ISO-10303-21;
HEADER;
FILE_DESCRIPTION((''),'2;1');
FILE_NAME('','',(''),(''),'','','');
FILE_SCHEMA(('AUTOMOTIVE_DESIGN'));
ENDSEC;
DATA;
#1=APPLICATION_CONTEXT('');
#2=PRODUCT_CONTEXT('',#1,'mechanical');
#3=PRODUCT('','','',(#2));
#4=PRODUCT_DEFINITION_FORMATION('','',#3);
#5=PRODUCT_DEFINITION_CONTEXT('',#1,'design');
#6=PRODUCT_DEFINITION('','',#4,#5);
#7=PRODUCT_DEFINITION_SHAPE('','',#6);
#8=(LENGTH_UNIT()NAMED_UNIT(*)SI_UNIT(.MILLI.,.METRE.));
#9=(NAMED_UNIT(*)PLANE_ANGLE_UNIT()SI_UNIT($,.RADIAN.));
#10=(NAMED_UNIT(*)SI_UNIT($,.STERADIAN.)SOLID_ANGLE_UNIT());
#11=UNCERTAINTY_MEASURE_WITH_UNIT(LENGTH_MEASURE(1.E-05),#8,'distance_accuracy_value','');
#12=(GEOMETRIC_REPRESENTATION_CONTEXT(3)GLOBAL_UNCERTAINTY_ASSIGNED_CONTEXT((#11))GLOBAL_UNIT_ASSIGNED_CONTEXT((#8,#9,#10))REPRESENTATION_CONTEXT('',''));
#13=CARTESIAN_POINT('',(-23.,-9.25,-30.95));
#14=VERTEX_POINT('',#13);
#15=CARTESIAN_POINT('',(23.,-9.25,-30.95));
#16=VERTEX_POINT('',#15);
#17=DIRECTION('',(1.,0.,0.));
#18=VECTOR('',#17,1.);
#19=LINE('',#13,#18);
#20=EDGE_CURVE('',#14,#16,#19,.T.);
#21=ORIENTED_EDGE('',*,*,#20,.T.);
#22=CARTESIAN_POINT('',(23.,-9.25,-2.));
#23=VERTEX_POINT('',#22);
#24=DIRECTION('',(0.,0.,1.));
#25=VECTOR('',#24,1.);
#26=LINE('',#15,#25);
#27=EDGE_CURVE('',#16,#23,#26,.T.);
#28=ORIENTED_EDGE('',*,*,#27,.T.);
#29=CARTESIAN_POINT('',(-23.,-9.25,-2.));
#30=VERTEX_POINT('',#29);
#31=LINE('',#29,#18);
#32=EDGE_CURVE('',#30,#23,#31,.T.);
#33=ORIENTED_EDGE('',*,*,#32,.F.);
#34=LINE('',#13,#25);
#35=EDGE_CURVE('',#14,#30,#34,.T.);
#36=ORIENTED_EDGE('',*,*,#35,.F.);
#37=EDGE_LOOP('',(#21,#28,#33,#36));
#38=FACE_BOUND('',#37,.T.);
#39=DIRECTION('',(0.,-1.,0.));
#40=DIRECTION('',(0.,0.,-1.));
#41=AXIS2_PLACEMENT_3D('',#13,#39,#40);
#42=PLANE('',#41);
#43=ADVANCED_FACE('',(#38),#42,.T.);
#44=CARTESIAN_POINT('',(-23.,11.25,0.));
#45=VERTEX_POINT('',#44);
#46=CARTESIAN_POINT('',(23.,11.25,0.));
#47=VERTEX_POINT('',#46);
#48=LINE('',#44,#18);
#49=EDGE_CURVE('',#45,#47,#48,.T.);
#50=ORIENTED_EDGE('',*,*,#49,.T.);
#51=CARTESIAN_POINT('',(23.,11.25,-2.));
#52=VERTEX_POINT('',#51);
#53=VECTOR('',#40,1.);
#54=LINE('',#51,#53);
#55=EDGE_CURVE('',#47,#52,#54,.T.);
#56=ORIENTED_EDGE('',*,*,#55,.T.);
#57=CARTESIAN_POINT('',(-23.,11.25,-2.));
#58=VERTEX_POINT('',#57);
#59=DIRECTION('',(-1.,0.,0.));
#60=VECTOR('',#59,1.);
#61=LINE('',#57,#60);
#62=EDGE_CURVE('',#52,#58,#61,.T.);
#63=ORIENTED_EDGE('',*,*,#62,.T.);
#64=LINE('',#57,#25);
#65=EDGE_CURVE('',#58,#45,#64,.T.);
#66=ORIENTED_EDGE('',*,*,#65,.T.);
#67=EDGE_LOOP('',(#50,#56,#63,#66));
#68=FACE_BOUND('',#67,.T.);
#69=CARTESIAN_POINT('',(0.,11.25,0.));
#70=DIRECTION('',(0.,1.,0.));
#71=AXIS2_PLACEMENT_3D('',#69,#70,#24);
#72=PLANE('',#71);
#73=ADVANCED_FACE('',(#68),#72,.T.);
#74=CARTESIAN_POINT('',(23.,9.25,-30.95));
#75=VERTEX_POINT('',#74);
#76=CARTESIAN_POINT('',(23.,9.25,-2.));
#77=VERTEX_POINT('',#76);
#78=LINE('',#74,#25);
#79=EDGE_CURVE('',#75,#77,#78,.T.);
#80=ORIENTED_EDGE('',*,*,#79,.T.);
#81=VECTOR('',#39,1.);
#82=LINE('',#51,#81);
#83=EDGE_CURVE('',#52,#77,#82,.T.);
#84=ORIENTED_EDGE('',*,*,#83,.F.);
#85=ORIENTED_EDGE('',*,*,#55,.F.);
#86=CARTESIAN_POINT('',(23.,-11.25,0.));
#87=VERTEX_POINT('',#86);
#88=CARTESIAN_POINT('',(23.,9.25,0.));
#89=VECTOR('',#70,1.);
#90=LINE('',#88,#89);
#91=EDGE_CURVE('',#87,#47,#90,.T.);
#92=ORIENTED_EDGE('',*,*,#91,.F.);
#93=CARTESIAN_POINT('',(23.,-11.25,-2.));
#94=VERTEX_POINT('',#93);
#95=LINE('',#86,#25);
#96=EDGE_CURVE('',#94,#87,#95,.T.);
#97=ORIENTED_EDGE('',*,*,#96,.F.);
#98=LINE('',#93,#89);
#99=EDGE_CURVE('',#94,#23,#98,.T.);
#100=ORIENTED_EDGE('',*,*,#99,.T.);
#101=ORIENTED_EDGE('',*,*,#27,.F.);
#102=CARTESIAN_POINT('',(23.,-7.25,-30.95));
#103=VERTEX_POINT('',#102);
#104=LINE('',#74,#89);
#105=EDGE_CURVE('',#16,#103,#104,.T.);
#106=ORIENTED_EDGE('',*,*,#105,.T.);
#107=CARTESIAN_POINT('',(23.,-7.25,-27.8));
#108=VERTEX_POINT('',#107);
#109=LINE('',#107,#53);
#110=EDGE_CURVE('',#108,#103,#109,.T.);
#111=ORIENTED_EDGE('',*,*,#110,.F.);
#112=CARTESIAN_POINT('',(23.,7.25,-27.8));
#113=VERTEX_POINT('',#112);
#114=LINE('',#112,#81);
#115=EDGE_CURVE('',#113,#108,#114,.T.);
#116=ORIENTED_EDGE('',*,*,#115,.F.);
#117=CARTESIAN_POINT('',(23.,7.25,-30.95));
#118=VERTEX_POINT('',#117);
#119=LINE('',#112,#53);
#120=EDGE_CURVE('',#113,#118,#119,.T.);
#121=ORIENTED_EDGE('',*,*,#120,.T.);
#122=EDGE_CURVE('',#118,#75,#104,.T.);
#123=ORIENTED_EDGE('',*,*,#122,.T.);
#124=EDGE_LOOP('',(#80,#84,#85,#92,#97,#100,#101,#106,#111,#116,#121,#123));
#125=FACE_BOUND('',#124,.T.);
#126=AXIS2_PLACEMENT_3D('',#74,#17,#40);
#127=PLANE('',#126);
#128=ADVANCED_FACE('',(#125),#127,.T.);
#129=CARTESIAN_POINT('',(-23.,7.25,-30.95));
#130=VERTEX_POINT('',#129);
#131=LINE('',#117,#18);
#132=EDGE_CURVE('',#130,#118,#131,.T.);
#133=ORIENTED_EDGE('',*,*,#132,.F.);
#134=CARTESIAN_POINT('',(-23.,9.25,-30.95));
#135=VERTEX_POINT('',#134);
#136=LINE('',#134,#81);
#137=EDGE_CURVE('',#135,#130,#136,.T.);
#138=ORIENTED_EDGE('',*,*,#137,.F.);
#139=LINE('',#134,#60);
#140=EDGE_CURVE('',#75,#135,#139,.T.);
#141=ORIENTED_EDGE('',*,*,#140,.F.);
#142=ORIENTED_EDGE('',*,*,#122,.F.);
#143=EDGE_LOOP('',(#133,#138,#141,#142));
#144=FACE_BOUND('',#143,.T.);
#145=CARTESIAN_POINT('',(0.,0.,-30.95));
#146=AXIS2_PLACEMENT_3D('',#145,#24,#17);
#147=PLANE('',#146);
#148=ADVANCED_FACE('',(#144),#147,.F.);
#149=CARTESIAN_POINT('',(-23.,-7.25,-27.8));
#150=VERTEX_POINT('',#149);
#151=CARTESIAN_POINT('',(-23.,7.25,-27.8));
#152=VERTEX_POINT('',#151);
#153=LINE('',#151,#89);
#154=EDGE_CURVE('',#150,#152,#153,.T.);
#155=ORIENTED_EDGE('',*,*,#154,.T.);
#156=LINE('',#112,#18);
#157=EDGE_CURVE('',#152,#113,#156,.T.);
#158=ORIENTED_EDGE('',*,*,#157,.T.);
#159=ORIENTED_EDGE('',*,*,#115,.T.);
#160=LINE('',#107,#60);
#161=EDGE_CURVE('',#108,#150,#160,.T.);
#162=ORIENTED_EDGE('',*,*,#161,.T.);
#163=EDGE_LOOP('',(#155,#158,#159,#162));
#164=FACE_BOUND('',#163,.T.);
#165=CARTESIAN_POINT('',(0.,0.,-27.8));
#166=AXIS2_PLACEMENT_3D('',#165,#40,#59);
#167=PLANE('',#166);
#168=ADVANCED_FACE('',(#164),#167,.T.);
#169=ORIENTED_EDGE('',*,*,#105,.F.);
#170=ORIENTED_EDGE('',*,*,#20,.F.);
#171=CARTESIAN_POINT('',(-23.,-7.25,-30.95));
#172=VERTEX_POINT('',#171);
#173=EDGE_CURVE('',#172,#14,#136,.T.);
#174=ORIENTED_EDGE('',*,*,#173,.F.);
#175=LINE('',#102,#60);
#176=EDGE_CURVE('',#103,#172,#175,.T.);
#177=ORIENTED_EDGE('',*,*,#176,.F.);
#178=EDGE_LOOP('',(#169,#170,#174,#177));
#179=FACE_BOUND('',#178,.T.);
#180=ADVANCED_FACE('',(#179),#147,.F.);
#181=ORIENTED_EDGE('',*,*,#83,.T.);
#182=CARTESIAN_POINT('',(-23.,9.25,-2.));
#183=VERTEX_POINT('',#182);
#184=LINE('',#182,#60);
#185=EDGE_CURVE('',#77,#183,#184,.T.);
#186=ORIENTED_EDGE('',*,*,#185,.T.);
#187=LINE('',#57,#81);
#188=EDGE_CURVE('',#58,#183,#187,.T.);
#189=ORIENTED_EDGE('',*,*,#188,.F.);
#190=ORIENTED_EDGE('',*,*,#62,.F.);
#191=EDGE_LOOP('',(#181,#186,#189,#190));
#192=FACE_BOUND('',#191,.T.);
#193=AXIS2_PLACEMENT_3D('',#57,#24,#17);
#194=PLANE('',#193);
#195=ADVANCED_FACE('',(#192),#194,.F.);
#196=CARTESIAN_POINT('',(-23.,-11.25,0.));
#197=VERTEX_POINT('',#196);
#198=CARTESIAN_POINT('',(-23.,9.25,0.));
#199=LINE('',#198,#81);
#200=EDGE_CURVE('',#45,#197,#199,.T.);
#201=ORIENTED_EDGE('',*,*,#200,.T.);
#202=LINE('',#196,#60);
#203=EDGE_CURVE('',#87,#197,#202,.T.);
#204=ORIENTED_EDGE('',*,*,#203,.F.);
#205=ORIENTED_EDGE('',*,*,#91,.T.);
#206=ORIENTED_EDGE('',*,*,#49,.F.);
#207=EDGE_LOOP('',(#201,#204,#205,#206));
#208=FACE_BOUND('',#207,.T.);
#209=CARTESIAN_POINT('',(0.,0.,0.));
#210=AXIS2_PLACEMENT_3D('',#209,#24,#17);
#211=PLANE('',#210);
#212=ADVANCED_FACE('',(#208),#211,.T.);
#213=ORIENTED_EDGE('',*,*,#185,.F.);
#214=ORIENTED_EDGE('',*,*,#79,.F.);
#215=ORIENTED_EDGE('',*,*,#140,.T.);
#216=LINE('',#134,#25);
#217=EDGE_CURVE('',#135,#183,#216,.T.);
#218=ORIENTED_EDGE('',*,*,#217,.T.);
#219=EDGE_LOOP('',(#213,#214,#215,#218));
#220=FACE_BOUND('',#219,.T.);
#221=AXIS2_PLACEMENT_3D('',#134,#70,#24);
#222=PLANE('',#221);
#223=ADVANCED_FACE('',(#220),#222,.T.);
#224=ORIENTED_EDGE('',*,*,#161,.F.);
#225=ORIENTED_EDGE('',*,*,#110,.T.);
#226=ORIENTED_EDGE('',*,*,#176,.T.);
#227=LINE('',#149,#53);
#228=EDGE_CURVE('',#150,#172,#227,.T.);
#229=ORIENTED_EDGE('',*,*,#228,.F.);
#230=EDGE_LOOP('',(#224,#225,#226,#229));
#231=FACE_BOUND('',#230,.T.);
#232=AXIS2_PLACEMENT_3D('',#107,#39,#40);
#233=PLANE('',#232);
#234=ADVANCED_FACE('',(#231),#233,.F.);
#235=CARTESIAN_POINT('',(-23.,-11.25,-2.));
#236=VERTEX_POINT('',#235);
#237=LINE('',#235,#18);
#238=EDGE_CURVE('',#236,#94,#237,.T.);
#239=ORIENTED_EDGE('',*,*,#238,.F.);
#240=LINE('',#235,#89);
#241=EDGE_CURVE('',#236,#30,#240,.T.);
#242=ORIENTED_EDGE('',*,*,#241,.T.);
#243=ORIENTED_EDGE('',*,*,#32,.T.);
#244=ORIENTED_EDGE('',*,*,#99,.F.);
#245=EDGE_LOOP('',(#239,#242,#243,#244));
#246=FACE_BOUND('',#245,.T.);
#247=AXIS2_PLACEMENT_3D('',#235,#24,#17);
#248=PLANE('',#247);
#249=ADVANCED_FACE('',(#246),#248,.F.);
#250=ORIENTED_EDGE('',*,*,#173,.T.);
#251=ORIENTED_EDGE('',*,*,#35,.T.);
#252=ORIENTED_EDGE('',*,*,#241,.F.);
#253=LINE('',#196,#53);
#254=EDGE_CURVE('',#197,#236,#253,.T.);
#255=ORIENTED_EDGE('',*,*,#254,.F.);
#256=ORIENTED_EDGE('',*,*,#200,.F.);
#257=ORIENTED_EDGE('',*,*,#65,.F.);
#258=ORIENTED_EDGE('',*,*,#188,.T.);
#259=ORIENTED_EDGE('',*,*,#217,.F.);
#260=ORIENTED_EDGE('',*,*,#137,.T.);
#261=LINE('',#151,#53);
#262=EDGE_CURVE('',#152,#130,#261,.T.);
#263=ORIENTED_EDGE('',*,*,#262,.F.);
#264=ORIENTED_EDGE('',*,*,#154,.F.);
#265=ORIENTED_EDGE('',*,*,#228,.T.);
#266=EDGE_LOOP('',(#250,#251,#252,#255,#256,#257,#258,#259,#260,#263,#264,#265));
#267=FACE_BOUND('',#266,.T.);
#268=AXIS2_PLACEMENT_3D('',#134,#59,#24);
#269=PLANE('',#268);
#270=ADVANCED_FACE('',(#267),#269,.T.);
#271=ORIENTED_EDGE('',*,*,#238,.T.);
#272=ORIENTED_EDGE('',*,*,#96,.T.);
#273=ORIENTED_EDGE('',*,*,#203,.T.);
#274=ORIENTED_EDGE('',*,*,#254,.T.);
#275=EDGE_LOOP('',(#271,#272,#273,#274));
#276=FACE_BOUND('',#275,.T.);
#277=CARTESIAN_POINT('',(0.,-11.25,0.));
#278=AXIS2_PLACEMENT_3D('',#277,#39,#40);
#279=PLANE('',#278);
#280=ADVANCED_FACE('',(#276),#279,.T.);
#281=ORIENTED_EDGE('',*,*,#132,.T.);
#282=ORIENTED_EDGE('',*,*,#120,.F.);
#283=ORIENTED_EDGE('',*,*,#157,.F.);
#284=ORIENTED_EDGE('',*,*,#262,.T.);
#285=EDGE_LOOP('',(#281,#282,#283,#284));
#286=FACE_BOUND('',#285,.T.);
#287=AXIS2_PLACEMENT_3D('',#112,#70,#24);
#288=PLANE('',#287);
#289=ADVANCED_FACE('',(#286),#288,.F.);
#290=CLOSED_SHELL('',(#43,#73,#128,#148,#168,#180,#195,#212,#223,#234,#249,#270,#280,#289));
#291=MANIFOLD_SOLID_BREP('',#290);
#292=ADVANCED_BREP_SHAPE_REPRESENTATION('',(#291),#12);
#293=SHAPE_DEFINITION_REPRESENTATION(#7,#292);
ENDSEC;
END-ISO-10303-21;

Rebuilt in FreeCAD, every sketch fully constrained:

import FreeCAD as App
import Part
import Sketcher

V = App.Vector

doc = App.newDocument("Part")
body = doc.addObject("PartDesign::Body", "Body")

# Sketch on XY plane
sketch1 = body.newObject("Sketcher::SketchObject", "Sketch")
sketch1.AttachmentSupport = (doc.getObject("XY_Plane"), [""])
sketch1.MapMode = "FlatFace"
sketch1.addGeometry(Part.LineSegment(V(-23, 9, 0), V(-23, -9, 0)), False)
sketch1.addGeometry(Part.LineSegment(V(-23, -9, 0), V(23, -9, 0)), False)
sketch1.addGeometry(Part.LineSegment(V(23, -9, 0), V(23, 9, 0)), False)
sketch1.addGeometry(Part.LineSegment(V(23, 9, 0), V(-23, 9, 0)), False)
sketch1.addConstraint(Sketcher.Constraint("Coincident", 0, 2, 1, 1))
sketch1.addConstraint(Sketcher.Constraint("Coincident", 1, 2, 2, 1))
sketch1.addConstraint(Sketcher.Constraint("Coincident", 2, 2, 3, 1))
sketch1.addConstraint(Sketcher.Constraint("Coincident", 3, 2, 0, 1))
sketch1.addConstraint(Sketcher.Constraint("Vertical", 0))
sketch1.addConstraint(Sketcher.Constraint("Horizontal", 1))
sketch1.addConstraint(Sketcher.Constraint("Vertical", 2))
sketch1.addConstraint(Sketcher.Constraint("Horizontal", 3))
sketch1.addConstraint(Sketcher.Constraint("Symmetric", 0, 2, 2, 2, -1, 1))
sketch1.addConstraint(Sketcher.Constraint("DistanceX", 1, 1, 1, 2, 46.0))
sketch1.addConstraint(Sketcher.Constraint("DistanceY", 0, 2, 0, 1, 18.5))
pad1 = body.newObject("PartDesign::Pad", "Pad")
pad1.Profile = sketch1
pad1.Length = 30.95
pad1.Reversed = True

# Sketch on XY plane
sketch2 = body.newObject("Sketcher::SketchObject", "Sketch001")
sketch2.AttachmentSupport = (doc.getObject("XY_Plane"), [""])
sketch2.MapMode = "FlatFace"
sketch2.AttachmentOffset = App.Placement(V(0, 0, -30.95), App.Rotation())
sketch2.addGeometry(Part.LineSegment(V(23, 7, 0), V(23, -7, 0)), False)
sketch2.addGeometry(Part.LineSegment(V(23, -7, 0), V(-23, -7, 0)), False)
sketch2.addGeometry(Part.LineSegment(V(-23, -7, 0), V(-23, 7, 0)), False)
sketch2.addGeometry(Part.LineSegment(V(-23, 7, 0), V(23, 7, 0)), False)
sketch2.addConstraint(Sketcher.Constraint("Coincident", 0, 2, 1, 1))
sketch2.addConstraint(Sketcher.Constraint("Coincident", 1, 2, 2, 1))
sketch2.addConstraint(Sketcher.Constraint("Coincident", 2, 2, 3, 1))
sketch2.addConstraint(Sketcher.Constraint("Coincident", 3, 2, 0, 1))
sketch2.addConstraint(Sketcher.Constraint("Vertical", 0))
sketch2.addConstraint(Sketcher.Constraint("Horizontal", 1))
sketch2.addConstraint(Sketcher.Constraint("Vertical", 2))
sketch2.addConstraint(Sketcher.Constraint("Horizontal", 3))
sketch2.addConstraint(Sketcher.Constraint("Symmetric", 0, 2, 2, 2, -1, 1))
sketch2.addConstraint(Sketcher.Constraint("DistanceX", 1, 2, 1, 1, 46.0))
sketch2.addConstraint(Sketcher.Constraint("DistanceY", 0, 2, 0, 1, 14.5))
pocket1 = body.newObject("PartDesign::Pocket", "Pocket")
pocket1.Profile = sketch2
pocket1.Length = 3.15
pocket1.Reversed = True

# Sketch on XZ plane
sketch3 = body.newObject("Sketcher::SketchObject", "Sketch002")
sketch3.AttachmentSupport = (doc.getObject("XZ_Plane"), [""])
sketch3.MapMode = "FlatFace"
sketch3.AttachmentOffset = App.Placement(V(0, 0, 9.25), App.Rotation())
sketch3.addGeometry(Part.LineSegment(V(-23, 0, 0), V(-23, -2, 0)), False)
sketch3.addGeometry(Part.LineSegment(V(-23, -2, 0), V(23, -2, 0)), False)
sketch3.addGeometry(Part.LineSegment(V(23, -2, 0), V(23, 0, 0)), False)
sketch3.addGeometry(Part.LineSegment(V(23, 0, 0), V(-23, 0, 0)), False)
sketch3.addConstraint(Sketcher.Constraint("Coincident", 0, 2, 1, 1))
sketch3.addConstraint(Sketcher.Constraint("Coincident", 1, 2, 2, 1))
sketch3.addConstraint(Sketcher.Constraint("Coincident", 2, 2, 3, 1))
sketch3.addConstraint(Sketcher.Constraint("Coincident", 3, 2, 0, 1))
sketch3.addConstraint(Sketcher.Constraint("Vertical", 0))
sketch3.addConstraint(Sketcher.Constraint("Horizontal", 1))
sketch3.addConstraint(Sketcher.Constraint("Vertical", 2))
sketch3.addConstraint(Sketcher.Constraint("Horizontal", 3))
sketch3.addConstraint(Sketcher.Constraint("Symmetric", 2, 2, 3, 2, -1, 1))
sketch3.addConstraint(Sketcher.Constraint("DistanceX", 1, 1, 1, 2, 46.0))
sketch3.addConstraint(Sketcher.Constraint("DistanceY", 0, 2, 0, 1, 2.0))
pad2 = body.newObject("PartDesign::Pad", "Pad001")
pad2.Profile = sketch3
pad2.Length = 2

# Sketch on XZ plane
sketch4 = body.newObject("Sketcher::SketchObject", "Sketch003")
sketch4.AttachmentSupport = (doc.getObject("XZ_Plane"), [""])
sketch4.MapMode = "FlatFace"
sketch4.AttachmentOffset = App.Placement(V(0, 0, -9.25), App.Rotation())
sketch4.addGeometry(Part.LineSegment(V(-23, -2, 0), V(-23, 0, 0)), False)
sketch4.addGeometry(Part.LineSegment(V(-23, 0, 0), V(23, 0, 0)), False)
sketch4.addGeometry(Part.LineSegment(V(23, 0, 0), V(23, -2, 0)), False)
sketch4.addGeometry(Part.LineSegment(V(23, -2, 0), V(-23, -2, 0)), False)
sketch4.addConstraint(Sketcher.Constraint("Coincident", 0, 2, 1, 1))
sketch4.addConstraint(Sketcher.Constraint("Coincident", 1, 2, 2, 1))
sketch4.addConstraint(Sketcher.Constraint("Coincident", 2, 2, 3, 1))
sketch4.addConstraint(Sketcher.Constraint("Coincident", 3, 2, 0, 1))
sketch4.addConstraint(Sketcher.Constraint("Vertical", 0))
sketch4.addConstraint(Sketcher.Constraint("Horizontal", 1))
sketch4.addConstraint(Sketcher.Constraint("Vertical", 2))
sketch4.addConstraint(Sketcher.Constraint("Horizontal", 3))
sketch4.addConstraint(Sketcher.Constraint("Symmetric", 0, 2, 1, 2, -1, 1))
sketch4.addConstraint(Sketcher.Constraint("DistanceX", 1, 1, 1, 2, 46.0))
sketch4.addConstraint(Sketcher.Constraint("DistanceY", 0, 1, 0, 2, 2.0))
pad3 = body.newObject("PartDesign::Pad", "Pad002")
pad3.Profile = sketch4
pad3.Length = 2
pad3.Reversed = True

doc.recompute()
